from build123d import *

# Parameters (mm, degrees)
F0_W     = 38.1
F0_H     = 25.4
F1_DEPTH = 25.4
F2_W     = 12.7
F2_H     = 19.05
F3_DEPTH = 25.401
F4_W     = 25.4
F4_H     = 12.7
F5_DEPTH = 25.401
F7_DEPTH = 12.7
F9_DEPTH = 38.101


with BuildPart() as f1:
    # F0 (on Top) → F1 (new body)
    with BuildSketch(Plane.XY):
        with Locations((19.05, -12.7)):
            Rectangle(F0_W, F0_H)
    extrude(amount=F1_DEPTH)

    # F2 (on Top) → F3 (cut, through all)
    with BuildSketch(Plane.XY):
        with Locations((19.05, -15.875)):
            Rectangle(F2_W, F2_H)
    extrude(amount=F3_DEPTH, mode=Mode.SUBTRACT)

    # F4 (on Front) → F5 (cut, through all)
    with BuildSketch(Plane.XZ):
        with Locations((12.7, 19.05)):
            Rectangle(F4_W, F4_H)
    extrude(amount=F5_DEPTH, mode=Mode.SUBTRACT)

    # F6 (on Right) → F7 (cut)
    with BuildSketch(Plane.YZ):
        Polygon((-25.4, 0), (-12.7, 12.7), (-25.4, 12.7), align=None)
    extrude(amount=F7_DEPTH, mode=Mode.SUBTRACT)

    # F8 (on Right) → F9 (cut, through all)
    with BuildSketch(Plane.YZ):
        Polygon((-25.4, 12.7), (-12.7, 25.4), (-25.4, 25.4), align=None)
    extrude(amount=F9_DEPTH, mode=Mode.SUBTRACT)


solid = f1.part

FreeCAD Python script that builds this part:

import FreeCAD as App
import Part
import Sketcher
from FreeCAD import Vector
Q = App.Units.Quantity


def add_polygon(sketch, points):
    """Adds a closed chain of lines whose ends are joined by coincident constraints."""
    first, n = sketch.GeometryCount, len(points)
    for a, b in zip(points, points[1:] + points[:1]):
        sketch.addGeometry(Part.LineSegment(App.Vector(*a, 0), App.Vector(*b, 0)), False)
    for i in range(n):
        sketch.addConstraint(Sketcher.Constraint("Coincident", first + i, 2, first + (i + 1) % n, 1))

doc = App.newDocument("Part")
body = doc.addObject("PartDesign::Body", "Body")

# Sketch on XY plane
sketch1 = doc.addObject("Sketcher::SketchObject", "Sketch")
body.addObject(sketch1)
sketch1.AttachmentSupport = (doc.XY_Plane, [""])
sketch1.MapMode = "FlatFace"
add_polygon(sketch1, [(0, 0), (0, -25), (38, -25), (38, 0)])  # lines 0-3
sketch1.addConstraint([
    Sketcher.Constraint("Vertical", 0),
    Sketcher.Constraint("Horizontal", 1),
    Sketcher.Constraint("Vertical", 2),
    Sketcher.Constraint("Horizontal", 3),
    Sketcher.Constraint("Coincident", 3, 2, -1, 1),
    Sketcher.Constraint("DistanceY", 0, 2, 0, 1, Q("1 in")),
    Sketcher.Constraint("DistanceX", 1, 1, 1, 2, Q("1.5 in")),
])
pad1 = doc.addObject("PartDesign::Pad", "Pad")
body.addObject(pad1)
pad1.Profile = sketch1
pad1.Length = Q("1 in")

# Sketch on XY plane
sketch2 = doc.addObject("Sketcher::SketchObject", "Sketch001")
body.addObject(sketch2)
sketch2.AttachmentSupport = (doc.XY_Plane, [""])
sketch2.MapMode = "FlatFace"
add_polygon(sketch2, [(13, -6), (13, -25), (25, -25), (25, -6)])  # lines 0-3
sketch2.addConstraint([
    Sketcher.Constraint("Vertical", 0),
    Sketcher.Constraint("Horizontal", 1),
    Sketcher.Constraint("Vertical", 2),
    Sketcher.Constraint("Horizontal", 3),
    Sketcher.Constraint("DistanceX", 1, 1, 1, 2, Q("0.5 in")),
    Sketcher.Constraint("DistanceY", 0, 2, -1, 1, Q("1 in")),
    Sketcher.Constraint("DistanceX", -1, 1, 1, 2, Q("1 in")),
    Sketcher.Constraint("DistanceY", 0, 2, 0, 1, Q("0.75 in")),
])
pocket1 = doc.addObject("PartDesign::Pocket", "Pocket")
body.addObject(pocket1)
pocket1.Profile = sketch2
pocket1.Type = "ThroughAll"
pocket1.Reversed = True

# Sketch on XZ plane
sketch3 = doc.addObject("Sketcher::SketchObject", "Sketch002")
body.addObject(sketch3)
sketch3.AttachmentSupport = (doc.XZ_Plane, [""])
sketch3.MapMode = "FlatFace"
add_polygon(sketch3, [(0, 25), (0, 13), (25, 13), (25, 25)])  # lines 0-3
sketch3.addConstraint([
    Sketcher.Constraint("Vertical", 0),
    Sketcher.Constraint("Horizontal", 1),
    Sketcher.Constraint("Vertical", 2),
    Sketcher.Constraint("Horizontal", 3),
    Sketcher.Constraint("PointOnObject", 0, 2, -2),
    Sketcher.Constraint("DistanceX", 1, 1, 1, 2, Q("1 in")),
    Sketcher.Constraint("DistanceY", 0, 2, 0, 1, Q("0.5 in")),
    Sketcher.Constraint("DistanceY", -1, 1, 2, 2, Q("1 in")),
])
pocket2 = doc.addObject("PartDesign::Pocket", "Pocket001")
body.addObject(pocket2)
pocket2.Profile = sketch3
pocket2.Type = "ThroughAll"
pocket2.Reversed = True

# Sketch on YZ plane
sketch4 = doc.addObject("Sketcher::SketchObject", "Sketch003")
body.addObject(sketch4)
sketch4.AttachmentSupport = (doc.YZ_Plane, [""])
sketch4.MapMode = "FlatFace"
add_polygon(sketch4, [(-25, 0), (-13, 13), (-25, 13)])  # lines 0-2
sketch4.addConstraint([
    Sketcher.Constraint("Horizontal", 1),
    Sketcher.Constraint("Vertical", 2),
    Sketcher.Constraint("PointOnObject", 2, 2, -1),
    Sketcher.Constraint("Equal", 1, 2),
    Sketcher.Constraint("DistanceX", 1, 2, 1, 1, Q("0.5 in")),
    Sketcher.Constraint("DistanceX", 1, 2, -1, 1, Q("1 in")),
])
pocket3 = doc.addObject("PartDesign::Pocket", "Pocket002")
body.addObject(pocket3)
pocket3.Profile = sketch4
pocket3.Length = Q("0.5 in")
pocket3.Reversed = True

# Sketch on YZ plane
sketch5 = doc.addObject("Sketcher::SketchObject", "Sketch004")
body.addObject(sketch5)
sketch5.AttachmentSupport = (doc.YZ_Plane, [""])
sketch5.MapMode = "FlatFace"
add_polygon(sketch5, [(-25, 13), (-13, 25), (-25, 25)])  # lines 0-2
sketch5.addConstraint([
    Sketcher.Constraint("Horizontal", 1),
    Sketcher.Constraint("Vertical", 2),
    Sketcher.Constraint("Equal", 1, 2),
    Sketcher.Constraint("DistanceX", 1, 2, 1, 1, Q("0.5 in")),
    Sketcher.Constraint("DistanceY", -1, 1, 0, 2, Q("1 in")),
    Sketcher.Constraint("DistanceX", 1, 2, -1, 1, Q("1 in")),
])
pocket4 = doc.addObject("PartDesign::Pocket", "Pocket003")
body.addObject(pocket4)
pocket4.Profile = sketch5
pocket4.Type = "ThroughAll"
pocket4.Reversed = True

doc.recompute()
